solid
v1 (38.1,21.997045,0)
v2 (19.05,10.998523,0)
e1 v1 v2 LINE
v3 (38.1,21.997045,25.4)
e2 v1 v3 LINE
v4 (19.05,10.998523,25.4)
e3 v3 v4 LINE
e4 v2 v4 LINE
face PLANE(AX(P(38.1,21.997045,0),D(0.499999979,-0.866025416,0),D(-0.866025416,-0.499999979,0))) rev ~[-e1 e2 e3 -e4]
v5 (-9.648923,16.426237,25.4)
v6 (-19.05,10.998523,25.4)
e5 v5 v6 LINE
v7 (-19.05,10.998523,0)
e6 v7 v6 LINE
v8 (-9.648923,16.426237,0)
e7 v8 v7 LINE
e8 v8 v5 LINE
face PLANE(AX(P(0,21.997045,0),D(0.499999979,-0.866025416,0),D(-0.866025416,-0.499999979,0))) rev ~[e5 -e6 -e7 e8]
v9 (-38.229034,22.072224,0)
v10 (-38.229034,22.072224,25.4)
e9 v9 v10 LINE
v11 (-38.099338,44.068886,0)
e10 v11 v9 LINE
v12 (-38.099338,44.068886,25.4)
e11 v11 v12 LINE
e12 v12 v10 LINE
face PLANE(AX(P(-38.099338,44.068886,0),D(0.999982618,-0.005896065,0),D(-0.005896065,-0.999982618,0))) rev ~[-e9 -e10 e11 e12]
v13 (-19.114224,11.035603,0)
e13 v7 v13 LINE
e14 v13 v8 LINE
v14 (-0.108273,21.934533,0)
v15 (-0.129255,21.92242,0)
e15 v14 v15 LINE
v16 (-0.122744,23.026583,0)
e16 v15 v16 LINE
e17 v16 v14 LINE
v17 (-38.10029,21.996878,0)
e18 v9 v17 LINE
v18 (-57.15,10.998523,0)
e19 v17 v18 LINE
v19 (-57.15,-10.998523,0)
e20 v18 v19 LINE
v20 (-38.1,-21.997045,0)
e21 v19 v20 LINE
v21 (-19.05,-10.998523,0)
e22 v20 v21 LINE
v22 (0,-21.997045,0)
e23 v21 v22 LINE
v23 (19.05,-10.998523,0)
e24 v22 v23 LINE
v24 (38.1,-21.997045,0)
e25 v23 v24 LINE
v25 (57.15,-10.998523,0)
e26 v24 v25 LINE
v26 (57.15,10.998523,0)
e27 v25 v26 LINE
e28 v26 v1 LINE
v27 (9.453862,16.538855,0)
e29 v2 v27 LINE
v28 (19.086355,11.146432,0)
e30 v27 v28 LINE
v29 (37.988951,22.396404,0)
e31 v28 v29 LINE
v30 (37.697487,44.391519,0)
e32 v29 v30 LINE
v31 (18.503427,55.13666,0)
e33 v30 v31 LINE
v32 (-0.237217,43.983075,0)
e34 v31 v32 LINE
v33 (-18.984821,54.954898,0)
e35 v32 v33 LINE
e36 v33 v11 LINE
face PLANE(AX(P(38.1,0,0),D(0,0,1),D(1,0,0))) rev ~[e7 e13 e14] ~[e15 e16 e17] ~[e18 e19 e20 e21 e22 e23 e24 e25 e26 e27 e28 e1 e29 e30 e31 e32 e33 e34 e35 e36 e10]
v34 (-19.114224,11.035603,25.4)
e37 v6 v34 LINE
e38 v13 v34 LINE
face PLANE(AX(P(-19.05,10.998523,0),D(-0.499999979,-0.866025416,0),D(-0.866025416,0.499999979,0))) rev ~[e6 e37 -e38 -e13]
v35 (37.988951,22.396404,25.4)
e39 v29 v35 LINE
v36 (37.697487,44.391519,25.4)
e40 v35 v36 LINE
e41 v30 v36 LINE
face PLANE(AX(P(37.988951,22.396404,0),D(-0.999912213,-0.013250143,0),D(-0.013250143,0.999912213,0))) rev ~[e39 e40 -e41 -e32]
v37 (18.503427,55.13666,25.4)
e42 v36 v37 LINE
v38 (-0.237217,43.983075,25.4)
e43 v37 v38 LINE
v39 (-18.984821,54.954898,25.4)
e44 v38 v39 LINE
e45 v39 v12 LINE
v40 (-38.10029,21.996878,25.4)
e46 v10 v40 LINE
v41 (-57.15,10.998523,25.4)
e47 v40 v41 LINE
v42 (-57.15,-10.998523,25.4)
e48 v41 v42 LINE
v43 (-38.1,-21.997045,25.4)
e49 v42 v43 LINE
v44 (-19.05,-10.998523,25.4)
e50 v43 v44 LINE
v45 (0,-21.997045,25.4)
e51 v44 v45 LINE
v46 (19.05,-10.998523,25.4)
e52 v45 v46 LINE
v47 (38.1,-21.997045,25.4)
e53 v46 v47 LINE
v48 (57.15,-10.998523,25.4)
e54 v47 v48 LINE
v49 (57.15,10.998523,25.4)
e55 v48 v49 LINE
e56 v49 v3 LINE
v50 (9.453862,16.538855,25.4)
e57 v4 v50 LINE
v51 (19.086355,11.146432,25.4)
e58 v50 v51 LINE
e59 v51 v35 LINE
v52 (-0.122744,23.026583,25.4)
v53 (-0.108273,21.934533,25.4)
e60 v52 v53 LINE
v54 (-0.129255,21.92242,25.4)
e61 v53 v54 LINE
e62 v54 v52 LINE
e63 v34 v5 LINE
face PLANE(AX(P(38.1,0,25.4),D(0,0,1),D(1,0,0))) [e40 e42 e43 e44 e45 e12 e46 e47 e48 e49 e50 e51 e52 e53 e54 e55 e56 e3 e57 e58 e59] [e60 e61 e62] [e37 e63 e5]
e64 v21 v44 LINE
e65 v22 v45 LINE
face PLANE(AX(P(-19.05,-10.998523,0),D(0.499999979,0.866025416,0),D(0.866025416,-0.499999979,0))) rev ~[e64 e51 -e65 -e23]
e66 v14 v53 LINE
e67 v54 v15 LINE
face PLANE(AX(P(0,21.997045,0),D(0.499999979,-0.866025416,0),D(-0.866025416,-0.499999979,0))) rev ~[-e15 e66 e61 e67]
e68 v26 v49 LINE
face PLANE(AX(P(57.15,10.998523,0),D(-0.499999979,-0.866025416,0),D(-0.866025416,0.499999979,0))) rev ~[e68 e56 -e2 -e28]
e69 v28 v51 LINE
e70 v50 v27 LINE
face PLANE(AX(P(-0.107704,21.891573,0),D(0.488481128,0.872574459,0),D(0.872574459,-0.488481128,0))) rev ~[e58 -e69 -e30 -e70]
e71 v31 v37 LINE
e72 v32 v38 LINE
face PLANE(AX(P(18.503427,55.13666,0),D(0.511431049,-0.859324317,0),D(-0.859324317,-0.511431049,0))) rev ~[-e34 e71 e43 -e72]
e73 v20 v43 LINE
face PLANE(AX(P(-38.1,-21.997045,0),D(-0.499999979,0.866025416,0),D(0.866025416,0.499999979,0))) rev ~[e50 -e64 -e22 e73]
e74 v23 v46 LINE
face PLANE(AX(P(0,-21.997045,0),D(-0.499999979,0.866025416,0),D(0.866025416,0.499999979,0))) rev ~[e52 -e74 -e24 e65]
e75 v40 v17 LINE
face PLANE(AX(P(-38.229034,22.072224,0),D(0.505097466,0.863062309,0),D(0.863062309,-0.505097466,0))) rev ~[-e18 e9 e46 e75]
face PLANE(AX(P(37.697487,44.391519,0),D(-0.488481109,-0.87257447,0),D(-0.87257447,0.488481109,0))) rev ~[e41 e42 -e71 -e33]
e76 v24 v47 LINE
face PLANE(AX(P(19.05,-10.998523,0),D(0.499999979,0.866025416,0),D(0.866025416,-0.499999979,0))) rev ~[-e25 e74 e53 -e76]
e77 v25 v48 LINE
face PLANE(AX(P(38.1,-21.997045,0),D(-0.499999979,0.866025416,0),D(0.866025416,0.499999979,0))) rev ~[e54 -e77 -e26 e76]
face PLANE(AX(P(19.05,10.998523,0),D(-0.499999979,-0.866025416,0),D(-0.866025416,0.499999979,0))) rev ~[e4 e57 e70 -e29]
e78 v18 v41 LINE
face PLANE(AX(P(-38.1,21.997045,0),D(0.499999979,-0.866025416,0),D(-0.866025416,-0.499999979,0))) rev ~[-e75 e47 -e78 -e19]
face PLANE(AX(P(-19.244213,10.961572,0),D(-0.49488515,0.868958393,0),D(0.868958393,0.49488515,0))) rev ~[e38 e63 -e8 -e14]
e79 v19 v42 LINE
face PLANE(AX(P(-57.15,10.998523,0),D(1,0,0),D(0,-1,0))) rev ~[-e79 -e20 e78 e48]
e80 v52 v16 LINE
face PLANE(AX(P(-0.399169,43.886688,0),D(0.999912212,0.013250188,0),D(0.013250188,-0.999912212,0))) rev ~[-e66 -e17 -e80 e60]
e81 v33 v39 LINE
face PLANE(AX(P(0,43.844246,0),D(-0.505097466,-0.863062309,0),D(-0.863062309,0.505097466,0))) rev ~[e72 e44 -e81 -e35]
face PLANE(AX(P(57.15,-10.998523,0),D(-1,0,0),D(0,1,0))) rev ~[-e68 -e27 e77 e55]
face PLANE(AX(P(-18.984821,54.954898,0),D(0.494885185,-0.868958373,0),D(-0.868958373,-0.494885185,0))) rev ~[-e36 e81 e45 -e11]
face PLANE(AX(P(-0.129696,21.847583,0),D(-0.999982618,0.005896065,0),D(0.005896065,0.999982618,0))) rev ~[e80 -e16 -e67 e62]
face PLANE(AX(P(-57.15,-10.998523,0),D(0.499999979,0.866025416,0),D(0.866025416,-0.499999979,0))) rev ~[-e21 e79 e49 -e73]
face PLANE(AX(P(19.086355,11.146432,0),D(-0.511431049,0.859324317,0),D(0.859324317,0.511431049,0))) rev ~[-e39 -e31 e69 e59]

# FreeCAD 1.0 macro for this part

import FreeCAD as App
import Part
import Sketcher

V = App.Vector
Q = App.Units.Quantity


def add_polygon(sketch, points):
    """Adds a closed chain of lines whose ends are joined by coincident constraints."""
    first, n = sketch.GeometryCount, len(points)
    for a, b in zip(points, points[1:] + points[:1]):
        sketch.addGeometry(Part.LineSegment(App.Vector(*a, 0), App.Vector(*b, 0)), False)
    for i in range(n):
        sketch.addConstraint(Sketcher.Constraint("Coincident", first + i, 2, first + (i + 1) % n, 1))

doc = App.newDocument("Part")
body = doc.addObject("PartDesign::Body", "Body")

# Sketch on XY plane
sketch1 = doc.addObject("Sketcher::SketchObject", "Sketch")
body.addObject(sketch1)
sketch1.AttachmentSupport = (doc.XY_Plane, [""])
sketch1.MapMode = "FlatFace"
add_polygon(sketch1, [(19, -11), (19, 11), (0, 22), (-19, 11), (-19, -11), (0, -22)])  # lines 0-5
sketch1.addConstraint(Sketcher.Constraint("Vertical", 0))
sketch1.addConstraint(Sketcher.Constraint("Vertical", 3))
sketch1.addConstraint(Sketcher.Constraint("Symmetric", 0, 2, 3, 2, -1, 1))
sketch1.addConstraint(Sketcher.Constraint("Symmetric", 1, 2, 4, 2, -1, 1))
sketch1.addConstraint(Sketcher.Constraint("PointOnObject", 1, 2, -2))
sketch1.addConstraint(Sketcher.Constraint("Parallel", 2, 5))
sketch1.addConstraint(Sketcher.Constraint("Horizontal", 0, 2, 2, 2))
sketch1.addConstraint(Sketcher.Constraint("Angle", 1, Q("150.000001 deg")))
sketch1.addConstraint(Sketcher.Constraint("DistanceX", 2, 2, 0, 2, Q("1.5 in")))
sketch1.addConstraint(Sketcher.Constraint("DistanceY", 0, 1, 0, 2, Q("21.997046 mm")))
pad1 = doc.addObject("PartDesign::Pad", "Pad")
body.addObject(pad1)
pad1.Profile = sketch1
pad1.Length = Q("1 in")

# Sketch on XY plane
sketch2 = doc.addObject("Sketcher::SketchObject", "Sketch001")
body.addObject(sketch2)
sketch2.AttachmentSupport = (doc.XY_Plane, [""])
sketch2.MapMode = "FlatFace"
add_polygon(sketch2, [(-19, 11), (0, 22), (0, 44), (-19, 55), (-38, 44), (-38, 22)])  # lines 0-5
sketch2.addConstraint(Sketcher.Constraint("PointOnObject", 1, 2, -2))
sketch2.addConstraint(Sketcher.Constraint("Parallel", 0, 3))
sketch2.addConstraint(Sketcher.Constraint("Parallel", 1, 4))
sketch2.addConstraint(Sketcher.Constraint("Parallel", 2, 5))
sketch2.addConstraint(Sketcher.Constraint("Equal", 0, 1))
sketch2.addConstraint(Sketcher.Constraint("Equal", 1, 2))
sketch2.addConstraint(Sketcher.Constraint("Equal", 2, 3))
sketch2.addConstraint(Sketcher.Constraint("DistanceX", 2, 2, -1, 1, Q("18.984821 mm")))
sketch2.addConstraint(Sketcher.Constraint("DistanceX", 3, 2, -1, 1, Q("38.099338 mm")))
sketch2.addConstraint(Sketcher.Constraint("DistanceY", 1, 2, 3, 2, Q("0.22464 mm")))
sketch2.addConstraint(Sketcher.Constraint("DistanceX", 5, 2, 2, 2, Q("0.259392 mm")))
sketch2.addConstraint(Sketcher.Constraint("DistanceY", -1, 1, 0, 2, Q("21.847583 mm")))
pad2 = doc.addObject("PartDesign::Pad", "Pad001")
body.addObject(pad2)
pad2.Profile = sketch2
pad2.Length = Q("1 in")

# Sketch on XY plane
sketch3 = doc.addObject("Sketcher::SketchObject", "Sketch002")
body.addObject(sketch3)
sketch3.AttachmentSupport = (doc.XY_Plane, [""])
sketch3.MapMode = "FlatFace"
add_polygon(sketch3, [(-19, -11), (-19, 11), (-38, 22), (-57, 11), (-57, -11), (-38, -22)])  # lines 0-5
sketch3.addConstraint(Sketcher.Constraint("Vertical", 0))
sketch3.addConstraint(Sketcher.Constraint("Vertical", 3))
sketch3.addConstraint(Sketcher.Constraint("Symmetric", 1, 2, 4, 2, -1))
sketch3.addConstraint(Sketcher.Constraint("Parallel", 1, 4))
sketch3.addConstraint(Sketcher.Constraint("Parallel", 2, 5))
sketch3.addConstraint(Sketcher.Constraint("Horizontal", 0, 2, 2, 2))
sketch3.addConstraint(Sketcher.Constraint("Horizontal", 3, 2, 5, 2))
sketch3.addConstraint(Sketcher.Constraint("Angle", 1, Q("150.000001 deg")))
sketch3.addConstraint(Sketcher.Constraint("DistanceX", 1, 2, -1, 1, Q("1.5 in")))
sketch3.addConstraint(Sketcher.Constraint("DistanceX", 2, 2, 0, 2, Q("1.5 in")))
sketch3.addConstraint(Sketcher.Constraint("DistanceY", 0, 1, 0, 2, Q("21.997046 mm")))
pad3 = doc.addObject("PartDesign::Pad", "Pad002")
body.addObject(pad3)
pad3.Profile = sketch3
pad3.Length = Q("1 in")

# Sketch on XY plane
sketch4 = doc.addObject("Sketcher::SketchObject", "Sketch003")
body.addObject(sketch4)
sketch4.AttachmentSupport = (doc.XY_Plane, [""])
sketch4.MapMode = "FlatFace"
add_polygon(sketch4, [(19, 11), (38, 22), (38, 44), (19, 55), (0, 44), (0, 22)])  # lines 0-5
sketch4.addConstraint(Sketcher.Constraint("Parallel", 0, 3))
sketch4.addConstraint(Sketcher.Constraint("Parallel", 1, 4))
sketch4.addConstraint(Sketcher.Constraint("Parallel", 2, 5))
sketch4.addConstraint(Sketcher.Constraint("Equal", 0, 1))
sketch4.addConstraint(Sketcher.Constraint("Equal", 1, 2))
sketch4.addConstraint(Sketcher.Constraint("Equal", 2, 3))
sketch4.addConstraint(Sketcher.Constraint("DistanceX", -1, 1, 0, 2, Q("37.988951 mm")))
sketch4.addConstraint(Sketcher.Constraint("DistanceY", -1, 1, 1, 2, Q("44.391519 mm")))
sketch4.addConstraint(Sketcher.Constraint("DistanceY", -1, 1, 2, 2, Q("55.13666 mm")))
sketch4.addConstraint(Sketcher.Constraint("DistanceX", 3, 2, -1, 1, Q("0.399169 mm")))
sketch4.addConstraint(Sketcher.Constraint("DistanceX", 2, 2, 1, 2, Q("19.19406 mm")))
sketch4.addConstraint(Sketcher.Constraint("DistanceY", 3, 2, 1, 2, Q("0.504831 mm")))
pad4 = doc.addObject("PartDesign::Pad", "Pad003")
body.addObject(pad4)
pad4.Profile = sketch4
pad4.Length = Q("1 in")

# Sketch on XY plane
sketch5 = doc.addObject("Sketcher::SketchObject", "Sketch004")
body.addObject(sketch5)
sketch5.AttachmentSupport = (doc.XY_Plane, [""])
sketch5.MapMode = "FlatFace"
add_polygon(sketch5, [(19, 11), (19, -11), (38, -22), (57, -11), (57, 11), (38, 22)])  # lines 0-5
sketch5.addConstraint(Sketcher.Constraint("Vertical", 0))
sketch5.addConstraint(Sketcher.Constraint("Vertical", 3))
sketch5.addConstraint(Sketcher.Constraint("Symmetric", 1, 2, 4, 2, -1))
sketch5.addConstraint(Sketcher.Constraint("Parallel", 1, 4))
sketch5.addConstraint(Sketcher.Constraint("Parallel", 2, 5))
sketch5.addConstraint(Sketcher.Constraint("Horizontal", 0, 2, 2, 2))
sketch5.addConstraint(Sketcher.Constraint("Horizontal", 3, 2, 5, 2))
sketch5.addConstraint(Sketcher.Constraint("Angle", 1, Q("-29.999999 deg")))
sketch5.addConstraint(Sketcher.Constraint("DistanceX", -1, 1, 1, 2, Q("1.5 in")))
sketch5.addConstraint(Sketcher.Constraint("DistanceX", 0, 2, 2, 2, Q("1.5 in")))
sketch5.addConstraint(Sketcher.Constraint("DistanceY", 0, 2, 0, 1, Q("21.997046 mm")))
pad5 = doc.addObject("PartDesign::Pad", "Pad004")
body.addObject(pad5)
pad5.Profile = sketch5
pad5.Length = Q("1 in")

doc.recompute()
